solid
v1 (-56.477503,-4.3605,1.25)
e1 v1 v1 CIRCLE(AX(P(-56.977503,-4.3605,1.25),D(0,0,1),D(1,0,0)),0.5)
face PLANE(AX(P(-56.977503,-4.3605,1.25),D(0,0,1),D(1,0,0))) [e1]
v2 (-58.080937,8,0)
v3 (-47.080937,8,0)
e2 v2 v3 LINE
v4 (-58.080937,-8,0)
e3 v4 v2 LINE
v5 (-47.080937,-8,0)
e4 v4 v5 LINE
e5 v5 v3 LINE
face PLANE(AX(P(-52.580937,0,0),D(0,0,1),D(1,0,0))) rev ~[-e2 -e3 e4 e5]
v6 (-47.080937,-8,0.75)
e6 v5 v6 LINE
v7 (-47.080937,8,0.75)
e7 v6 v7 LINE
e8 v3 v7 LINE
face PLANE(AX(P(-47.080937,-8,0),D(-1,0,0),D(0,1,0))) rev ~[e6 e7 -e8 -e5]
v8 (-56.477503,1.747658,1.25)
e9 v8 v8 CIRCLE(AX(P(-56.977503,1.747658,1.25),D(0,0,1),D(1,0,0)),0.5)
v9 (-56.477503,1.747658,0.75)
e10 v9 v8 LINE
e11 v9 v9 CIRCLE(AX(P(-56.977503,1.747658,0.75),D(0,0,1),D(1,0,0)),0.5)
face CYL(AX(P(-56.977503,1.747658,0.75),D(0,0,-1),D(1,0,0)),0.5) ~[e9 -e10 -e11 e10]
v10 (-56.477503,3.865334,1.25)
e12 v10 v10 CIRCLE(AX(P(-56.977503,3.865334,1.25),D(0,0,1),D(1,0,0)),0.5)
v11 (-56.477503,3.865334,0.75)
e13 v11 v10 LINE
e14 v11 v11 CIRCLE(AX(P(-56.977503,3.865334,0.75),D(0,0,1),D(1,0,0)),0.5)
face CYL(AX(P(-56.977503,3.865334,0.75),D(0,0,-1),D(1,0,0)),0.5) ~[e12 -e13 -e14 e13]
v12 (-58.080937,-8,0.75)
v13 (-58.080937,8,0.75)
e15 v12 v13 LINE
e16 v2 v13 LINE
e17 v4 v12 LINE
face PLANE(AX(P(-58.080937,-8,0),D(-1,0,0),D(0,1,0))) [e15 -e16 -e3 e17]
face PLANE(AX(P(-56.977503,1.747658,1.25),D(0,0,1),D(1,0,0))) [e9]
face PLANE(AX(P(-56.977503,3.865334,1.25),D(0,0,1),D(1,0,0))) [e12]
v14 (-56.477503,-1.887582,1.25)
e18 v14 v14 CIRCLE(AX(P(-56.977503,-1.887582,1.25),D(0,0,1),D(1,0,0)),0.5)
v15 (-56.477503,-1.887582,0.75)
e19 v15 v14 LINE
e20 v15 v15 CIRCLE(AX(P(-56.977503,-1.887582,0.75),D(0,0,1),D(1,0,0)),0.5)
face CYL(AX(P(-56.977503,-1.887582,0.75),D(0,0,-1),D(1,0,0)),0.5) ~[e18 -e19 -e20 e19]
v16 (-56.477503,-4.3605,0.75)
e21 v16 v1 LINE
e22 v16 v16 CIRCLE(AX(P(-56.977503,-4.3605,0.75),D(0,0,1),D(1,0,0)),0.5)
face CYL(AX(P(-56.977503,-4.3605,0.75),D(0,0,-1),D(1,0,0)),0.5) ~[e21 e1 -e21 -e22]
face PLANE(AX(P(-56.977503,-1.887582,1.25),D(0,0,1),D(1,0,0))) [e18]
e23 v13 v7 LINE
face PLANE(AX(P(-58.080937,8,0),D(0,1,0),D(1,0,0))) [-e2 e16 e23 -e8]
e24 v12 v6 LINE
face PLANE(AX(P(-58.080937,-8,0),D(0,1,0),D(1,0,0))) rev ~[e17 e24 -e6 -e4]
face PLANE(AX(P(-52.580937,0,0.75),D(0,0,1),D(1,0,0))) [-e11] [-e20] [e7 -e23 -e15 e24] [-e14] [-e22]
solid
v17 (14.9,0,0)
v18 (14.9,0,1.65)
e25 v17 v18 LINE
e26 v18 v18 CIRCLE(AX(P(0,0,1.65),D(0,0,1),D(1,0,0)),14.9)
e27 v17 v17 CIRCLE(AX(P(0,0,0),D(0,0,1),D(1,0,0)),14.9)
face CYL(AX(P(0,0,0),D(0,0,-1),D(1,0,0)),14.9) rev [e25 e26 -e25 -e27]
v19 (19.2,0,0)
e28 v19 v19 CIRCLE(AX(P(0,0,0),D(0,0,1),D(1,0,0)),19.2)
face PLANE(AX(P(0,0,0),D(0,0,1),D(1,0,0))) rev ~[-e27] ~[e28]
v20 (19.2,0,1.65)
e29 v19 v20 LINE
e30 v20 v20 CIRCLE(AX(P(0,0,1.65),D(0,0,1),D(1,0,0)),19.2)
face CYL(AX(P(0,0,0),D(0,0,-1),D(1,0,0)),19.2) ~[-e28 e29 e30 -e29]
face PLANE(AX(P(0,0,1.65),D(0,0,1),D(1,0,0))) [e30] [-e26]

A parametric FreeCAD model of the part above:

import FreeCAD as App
import Part
import Sketcher

V = App.Vector
Q = App.Units.Quantity

doc = App.newDocument("Part")
body = doc.addObject("PartDesign::Body", "Body")

sketch1 = body.newObject("Sketcher::SketchObject", "Sketch")
sketch1.AttachmentSupport = (doc.getObject("XY_Plane"), [""])
sketch1.MapMode = "FlatFace"
sketch1.addGeometry(Part.Circle(V(0, 0, 0), V(0, 0, 1), 19), False)
sketch1.addGeometry(Part.Circle(V(0, 0, 0), V(0, 0, 1), 15), False)
sketch1.addConstraint(Sketcher.Constraint("Coincident", 0, 3, -1, 1))
sketch1.addConstraint(Sketcher.Constraint("Coincident", 1, 3, -1, 1))
sketch1.addConstraint(Sketcher.Constraint("Diameter", 0, Q("38.4 mm")))
sketch1.addConstraint(Sketcher.Constraint("Diameter", 1, Q("29.8 mm")))
pad1 = body.newObject("PartDesign::Pad", "Pad")
pad1.Profile = sketch1
pad1.Length = 1.65
body2 = doc.addObject("PartDesign::Body", "Body001")

sketch2 = body2.newObject("Sketcher::SketchObject", "Sketch001")
sketch2.AttachmentSupport = (doc.getObject("XY_Plane001"), [""])
sketch2.MapMode = "FlatFace"
sketch2.addGeometry(Part.LineSegment(V(-58, 8, 0), V(-58, -8, 0)), False)
sketch2.addGeometry(Part.LineSegment(V(-58, -8, 0), V(-47, -8, 0)), False)
sketch2.addGeometry(Part.LineSegment(V(-47, -8, 0), V(-47, 8, 0)), False)
sketch2.addGeometry(Part.LineSegment(V(-47, 8, 0), V(-58, 8, 0)), False)
sketch2.addConstraint(Sketcher.Constraint("Coincident", 0, 2, 1, 1))
sketch2.addConstraint(Sketcher.Constraint("Coincident", 1, 2, 2, 1))
sketch2.addConstraint(Sketcher.Constraint("Coincident", 2, 2, 3, 1))
sketch2.addConstraint(Sketcher.Constraint("Coincident", 3, 2, 0, 1))
sketch2.addConstraint(Sketcher.Constraint("Vertical", 0))
sketch2.addConstraint(Sketcher.Constraint("Horizontal", 1))
sketch2.addConstraint(Sketcher.Constraint("Vertical", 2))
sketch2.addConstraint(Sketcher.Constraint("Horizontal", 3))
sketch2.addConstraint(Sketcher.Constraint("DistanceX", 1, 1, 1, 2, Q("11 mm")))
sketch2.addConstraint(Sketcher.Constraint("DistanceY", 0, 2, 0, 1, Q("16 mm")))
sketch2.addConstraint(Sketcher.Constraint("DistanceY", 0, 2, -1, 1, Q("8 mm")))
sketch2.addConstraint(Sketcher.Constraint("DistanceX", 0, 2, -1, 1, Q("58.080937 mm")))
pad2 = body2.newObject("PartDesign::Pad", "Pad001")
pad2.Profile = sketch2
pad2.Length = 0.75

sketch3 = body2.newObject("Sketcher::SketchObject", "Sketch002")
sketch3.AttachmentSupport = (doc.getObject("XY_Plane001"), [""])
sketch3.MapMode = "FlatFace"
sketch3.AttachmentOffset = App.Placement(V(0, 0, 0.75), App.Rotation())
sketch3.addGeometry(Part.Circle(V(-57, 3.9, 0), V(0, 0, 1), 0.5), False)
sketch3.addGeometry(Part.Circle(V(-57, 1.7, 0), V(0, 0, 1), 0.5), False)
sketch3.addGeometry(Part.Circle(V(-57, -1.9, 0), V(0, 0, 1), 0.5), False)
sketch3.addGeometry(Part.Circle(V(-57, -4.4, 0), V(0, 0, 1), 0.5), False)
sketch3.addConstraint(Sketcher.Constraint("Equal", 0, 1))
sketch3.addConstraint(Sketcher.Constraint("Equal", 1, 2))
sketch3.addConstraint(Sketcher.Constraint("Equal", 2, 3))
sketch3.addConstraint(Sketcher.Constraint("Vertical", 0, 3, 1, 3))
sketch3.addConstraint(Sketcher.Constraint("Vertical", 1, 3, 2, 3))
sketch3.addConstraint(Sketcher.Constraint("Vertical", 2, 3, 3, 3))
sketch3.addConstraint(Sketcher.Constraint("Diameter", 0, Q("1 mm")))
sketch3.addConstraint(Sketcher.Constraint("DistanceY", 3, 3, -1, 1, Q("4.3605 mm")))
sketch3.addConstraint(Sketcher.Constraint("DistanceY", 2, 3, 1, 3, Q("3.63524 mm")))
sketch3.addConstraint(Sketcher.Constraint("DistanceY", 3, 3, 2, 3, Q("2.472918 mm")))
sketch3.addConstraint(Sketcher.Constraint("DistanceX", 0, 3, -1, 1, Q("56.977503 mm")))
sketch3.addConstraint(Sketcher.Constraint("DistanceY", -1, 1, 0, 3, Q("3.865334 mm")))
pad3 = body2.newObject("PartDesign::Pad", "Pad002")
pad3.Profile = sketch3
pad3.Length = 0.5

doc.recompute()
